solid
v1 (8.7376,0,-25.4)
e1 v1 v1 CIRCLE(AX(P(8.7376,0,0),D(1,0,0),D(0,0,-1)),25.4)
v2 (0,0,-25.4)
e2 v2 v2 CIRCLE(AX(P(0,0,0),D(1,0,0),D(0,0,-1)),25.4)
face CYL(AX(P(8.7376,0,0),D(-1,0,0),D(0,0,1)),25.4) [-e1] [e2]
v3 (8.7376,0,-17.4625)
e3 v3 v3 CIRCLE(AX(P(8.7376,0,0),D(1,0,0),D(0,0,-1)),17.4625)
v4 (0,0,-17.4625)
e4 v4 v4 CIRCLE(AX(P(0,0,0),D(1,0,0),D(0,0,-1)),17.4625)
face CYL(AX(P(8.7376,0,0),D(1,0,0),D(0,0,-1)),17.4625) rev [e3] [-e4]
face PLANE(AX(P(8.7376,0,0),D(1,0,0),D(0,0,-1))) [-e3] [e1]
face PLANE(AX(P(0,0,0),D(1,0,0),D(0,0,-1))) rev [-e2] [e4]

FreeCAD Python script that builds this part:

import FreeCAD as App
import Part
import Sketcher
Q = App.Units.Quantity

doc = App.newDocument("Part")
body = doc.addObject("PartDesign::Body", "Body")

sketch1 = body.newObject("Sketcher::SketchObject", "Sketch")
sketch1.AttachmentSupport = (doc.getObject("YZ_Plane"), [""])
sketch1.MapMode = "FlatFace"
sketch1.addGeometry(Part.Circle(App.Vector(0, 0, 0), App.Vector(0, 0, 1), 25), False)
sketch1.addConstraint([
    Sketcher.Constraint("Coincident", 0, 3, -1, 1),
    Sketcher.Constraint("Diameter", 0, Q("2 in")),
])
pad1 = body.newObject("PartDesign::Pad", "Pad")
pad1.Profile = sketch1
pad1.Length = Q("0.344 in")

sketch2 = body.newObject("Sketcher::SketchObject", "Sketch001")
sketch2.AttachmentSupport = (doc.getObject("YZ_Plane"), [""])
sketch2.MapMode = "FlatFace"
sketch2.AttachmentOffset = App.Placement(App.Vector(0, 0, 0.344 * 25.4), App.Rotation())
sketch2.addGeometry(Part.Circle(App.Vector(0, 0, 0), App.Vector(0, 0, 1), 17), False)
sketch2.addConstraint([
    Sketcher.Constraint("Coincident", 0, 3, -1, 1),
    Sketcher.Constraint("Diameter", 0, Q("1.375 in")),
])
doc.recompute()
hole = body.newObject("PartDesign::Hole", "Hole")
hole.Profile = sketch2
hole.ThreadType = "None"
hole.Diameter = Q("1.375 in")
hole.DepthType = "ThroughAll"

doc.recompute()
